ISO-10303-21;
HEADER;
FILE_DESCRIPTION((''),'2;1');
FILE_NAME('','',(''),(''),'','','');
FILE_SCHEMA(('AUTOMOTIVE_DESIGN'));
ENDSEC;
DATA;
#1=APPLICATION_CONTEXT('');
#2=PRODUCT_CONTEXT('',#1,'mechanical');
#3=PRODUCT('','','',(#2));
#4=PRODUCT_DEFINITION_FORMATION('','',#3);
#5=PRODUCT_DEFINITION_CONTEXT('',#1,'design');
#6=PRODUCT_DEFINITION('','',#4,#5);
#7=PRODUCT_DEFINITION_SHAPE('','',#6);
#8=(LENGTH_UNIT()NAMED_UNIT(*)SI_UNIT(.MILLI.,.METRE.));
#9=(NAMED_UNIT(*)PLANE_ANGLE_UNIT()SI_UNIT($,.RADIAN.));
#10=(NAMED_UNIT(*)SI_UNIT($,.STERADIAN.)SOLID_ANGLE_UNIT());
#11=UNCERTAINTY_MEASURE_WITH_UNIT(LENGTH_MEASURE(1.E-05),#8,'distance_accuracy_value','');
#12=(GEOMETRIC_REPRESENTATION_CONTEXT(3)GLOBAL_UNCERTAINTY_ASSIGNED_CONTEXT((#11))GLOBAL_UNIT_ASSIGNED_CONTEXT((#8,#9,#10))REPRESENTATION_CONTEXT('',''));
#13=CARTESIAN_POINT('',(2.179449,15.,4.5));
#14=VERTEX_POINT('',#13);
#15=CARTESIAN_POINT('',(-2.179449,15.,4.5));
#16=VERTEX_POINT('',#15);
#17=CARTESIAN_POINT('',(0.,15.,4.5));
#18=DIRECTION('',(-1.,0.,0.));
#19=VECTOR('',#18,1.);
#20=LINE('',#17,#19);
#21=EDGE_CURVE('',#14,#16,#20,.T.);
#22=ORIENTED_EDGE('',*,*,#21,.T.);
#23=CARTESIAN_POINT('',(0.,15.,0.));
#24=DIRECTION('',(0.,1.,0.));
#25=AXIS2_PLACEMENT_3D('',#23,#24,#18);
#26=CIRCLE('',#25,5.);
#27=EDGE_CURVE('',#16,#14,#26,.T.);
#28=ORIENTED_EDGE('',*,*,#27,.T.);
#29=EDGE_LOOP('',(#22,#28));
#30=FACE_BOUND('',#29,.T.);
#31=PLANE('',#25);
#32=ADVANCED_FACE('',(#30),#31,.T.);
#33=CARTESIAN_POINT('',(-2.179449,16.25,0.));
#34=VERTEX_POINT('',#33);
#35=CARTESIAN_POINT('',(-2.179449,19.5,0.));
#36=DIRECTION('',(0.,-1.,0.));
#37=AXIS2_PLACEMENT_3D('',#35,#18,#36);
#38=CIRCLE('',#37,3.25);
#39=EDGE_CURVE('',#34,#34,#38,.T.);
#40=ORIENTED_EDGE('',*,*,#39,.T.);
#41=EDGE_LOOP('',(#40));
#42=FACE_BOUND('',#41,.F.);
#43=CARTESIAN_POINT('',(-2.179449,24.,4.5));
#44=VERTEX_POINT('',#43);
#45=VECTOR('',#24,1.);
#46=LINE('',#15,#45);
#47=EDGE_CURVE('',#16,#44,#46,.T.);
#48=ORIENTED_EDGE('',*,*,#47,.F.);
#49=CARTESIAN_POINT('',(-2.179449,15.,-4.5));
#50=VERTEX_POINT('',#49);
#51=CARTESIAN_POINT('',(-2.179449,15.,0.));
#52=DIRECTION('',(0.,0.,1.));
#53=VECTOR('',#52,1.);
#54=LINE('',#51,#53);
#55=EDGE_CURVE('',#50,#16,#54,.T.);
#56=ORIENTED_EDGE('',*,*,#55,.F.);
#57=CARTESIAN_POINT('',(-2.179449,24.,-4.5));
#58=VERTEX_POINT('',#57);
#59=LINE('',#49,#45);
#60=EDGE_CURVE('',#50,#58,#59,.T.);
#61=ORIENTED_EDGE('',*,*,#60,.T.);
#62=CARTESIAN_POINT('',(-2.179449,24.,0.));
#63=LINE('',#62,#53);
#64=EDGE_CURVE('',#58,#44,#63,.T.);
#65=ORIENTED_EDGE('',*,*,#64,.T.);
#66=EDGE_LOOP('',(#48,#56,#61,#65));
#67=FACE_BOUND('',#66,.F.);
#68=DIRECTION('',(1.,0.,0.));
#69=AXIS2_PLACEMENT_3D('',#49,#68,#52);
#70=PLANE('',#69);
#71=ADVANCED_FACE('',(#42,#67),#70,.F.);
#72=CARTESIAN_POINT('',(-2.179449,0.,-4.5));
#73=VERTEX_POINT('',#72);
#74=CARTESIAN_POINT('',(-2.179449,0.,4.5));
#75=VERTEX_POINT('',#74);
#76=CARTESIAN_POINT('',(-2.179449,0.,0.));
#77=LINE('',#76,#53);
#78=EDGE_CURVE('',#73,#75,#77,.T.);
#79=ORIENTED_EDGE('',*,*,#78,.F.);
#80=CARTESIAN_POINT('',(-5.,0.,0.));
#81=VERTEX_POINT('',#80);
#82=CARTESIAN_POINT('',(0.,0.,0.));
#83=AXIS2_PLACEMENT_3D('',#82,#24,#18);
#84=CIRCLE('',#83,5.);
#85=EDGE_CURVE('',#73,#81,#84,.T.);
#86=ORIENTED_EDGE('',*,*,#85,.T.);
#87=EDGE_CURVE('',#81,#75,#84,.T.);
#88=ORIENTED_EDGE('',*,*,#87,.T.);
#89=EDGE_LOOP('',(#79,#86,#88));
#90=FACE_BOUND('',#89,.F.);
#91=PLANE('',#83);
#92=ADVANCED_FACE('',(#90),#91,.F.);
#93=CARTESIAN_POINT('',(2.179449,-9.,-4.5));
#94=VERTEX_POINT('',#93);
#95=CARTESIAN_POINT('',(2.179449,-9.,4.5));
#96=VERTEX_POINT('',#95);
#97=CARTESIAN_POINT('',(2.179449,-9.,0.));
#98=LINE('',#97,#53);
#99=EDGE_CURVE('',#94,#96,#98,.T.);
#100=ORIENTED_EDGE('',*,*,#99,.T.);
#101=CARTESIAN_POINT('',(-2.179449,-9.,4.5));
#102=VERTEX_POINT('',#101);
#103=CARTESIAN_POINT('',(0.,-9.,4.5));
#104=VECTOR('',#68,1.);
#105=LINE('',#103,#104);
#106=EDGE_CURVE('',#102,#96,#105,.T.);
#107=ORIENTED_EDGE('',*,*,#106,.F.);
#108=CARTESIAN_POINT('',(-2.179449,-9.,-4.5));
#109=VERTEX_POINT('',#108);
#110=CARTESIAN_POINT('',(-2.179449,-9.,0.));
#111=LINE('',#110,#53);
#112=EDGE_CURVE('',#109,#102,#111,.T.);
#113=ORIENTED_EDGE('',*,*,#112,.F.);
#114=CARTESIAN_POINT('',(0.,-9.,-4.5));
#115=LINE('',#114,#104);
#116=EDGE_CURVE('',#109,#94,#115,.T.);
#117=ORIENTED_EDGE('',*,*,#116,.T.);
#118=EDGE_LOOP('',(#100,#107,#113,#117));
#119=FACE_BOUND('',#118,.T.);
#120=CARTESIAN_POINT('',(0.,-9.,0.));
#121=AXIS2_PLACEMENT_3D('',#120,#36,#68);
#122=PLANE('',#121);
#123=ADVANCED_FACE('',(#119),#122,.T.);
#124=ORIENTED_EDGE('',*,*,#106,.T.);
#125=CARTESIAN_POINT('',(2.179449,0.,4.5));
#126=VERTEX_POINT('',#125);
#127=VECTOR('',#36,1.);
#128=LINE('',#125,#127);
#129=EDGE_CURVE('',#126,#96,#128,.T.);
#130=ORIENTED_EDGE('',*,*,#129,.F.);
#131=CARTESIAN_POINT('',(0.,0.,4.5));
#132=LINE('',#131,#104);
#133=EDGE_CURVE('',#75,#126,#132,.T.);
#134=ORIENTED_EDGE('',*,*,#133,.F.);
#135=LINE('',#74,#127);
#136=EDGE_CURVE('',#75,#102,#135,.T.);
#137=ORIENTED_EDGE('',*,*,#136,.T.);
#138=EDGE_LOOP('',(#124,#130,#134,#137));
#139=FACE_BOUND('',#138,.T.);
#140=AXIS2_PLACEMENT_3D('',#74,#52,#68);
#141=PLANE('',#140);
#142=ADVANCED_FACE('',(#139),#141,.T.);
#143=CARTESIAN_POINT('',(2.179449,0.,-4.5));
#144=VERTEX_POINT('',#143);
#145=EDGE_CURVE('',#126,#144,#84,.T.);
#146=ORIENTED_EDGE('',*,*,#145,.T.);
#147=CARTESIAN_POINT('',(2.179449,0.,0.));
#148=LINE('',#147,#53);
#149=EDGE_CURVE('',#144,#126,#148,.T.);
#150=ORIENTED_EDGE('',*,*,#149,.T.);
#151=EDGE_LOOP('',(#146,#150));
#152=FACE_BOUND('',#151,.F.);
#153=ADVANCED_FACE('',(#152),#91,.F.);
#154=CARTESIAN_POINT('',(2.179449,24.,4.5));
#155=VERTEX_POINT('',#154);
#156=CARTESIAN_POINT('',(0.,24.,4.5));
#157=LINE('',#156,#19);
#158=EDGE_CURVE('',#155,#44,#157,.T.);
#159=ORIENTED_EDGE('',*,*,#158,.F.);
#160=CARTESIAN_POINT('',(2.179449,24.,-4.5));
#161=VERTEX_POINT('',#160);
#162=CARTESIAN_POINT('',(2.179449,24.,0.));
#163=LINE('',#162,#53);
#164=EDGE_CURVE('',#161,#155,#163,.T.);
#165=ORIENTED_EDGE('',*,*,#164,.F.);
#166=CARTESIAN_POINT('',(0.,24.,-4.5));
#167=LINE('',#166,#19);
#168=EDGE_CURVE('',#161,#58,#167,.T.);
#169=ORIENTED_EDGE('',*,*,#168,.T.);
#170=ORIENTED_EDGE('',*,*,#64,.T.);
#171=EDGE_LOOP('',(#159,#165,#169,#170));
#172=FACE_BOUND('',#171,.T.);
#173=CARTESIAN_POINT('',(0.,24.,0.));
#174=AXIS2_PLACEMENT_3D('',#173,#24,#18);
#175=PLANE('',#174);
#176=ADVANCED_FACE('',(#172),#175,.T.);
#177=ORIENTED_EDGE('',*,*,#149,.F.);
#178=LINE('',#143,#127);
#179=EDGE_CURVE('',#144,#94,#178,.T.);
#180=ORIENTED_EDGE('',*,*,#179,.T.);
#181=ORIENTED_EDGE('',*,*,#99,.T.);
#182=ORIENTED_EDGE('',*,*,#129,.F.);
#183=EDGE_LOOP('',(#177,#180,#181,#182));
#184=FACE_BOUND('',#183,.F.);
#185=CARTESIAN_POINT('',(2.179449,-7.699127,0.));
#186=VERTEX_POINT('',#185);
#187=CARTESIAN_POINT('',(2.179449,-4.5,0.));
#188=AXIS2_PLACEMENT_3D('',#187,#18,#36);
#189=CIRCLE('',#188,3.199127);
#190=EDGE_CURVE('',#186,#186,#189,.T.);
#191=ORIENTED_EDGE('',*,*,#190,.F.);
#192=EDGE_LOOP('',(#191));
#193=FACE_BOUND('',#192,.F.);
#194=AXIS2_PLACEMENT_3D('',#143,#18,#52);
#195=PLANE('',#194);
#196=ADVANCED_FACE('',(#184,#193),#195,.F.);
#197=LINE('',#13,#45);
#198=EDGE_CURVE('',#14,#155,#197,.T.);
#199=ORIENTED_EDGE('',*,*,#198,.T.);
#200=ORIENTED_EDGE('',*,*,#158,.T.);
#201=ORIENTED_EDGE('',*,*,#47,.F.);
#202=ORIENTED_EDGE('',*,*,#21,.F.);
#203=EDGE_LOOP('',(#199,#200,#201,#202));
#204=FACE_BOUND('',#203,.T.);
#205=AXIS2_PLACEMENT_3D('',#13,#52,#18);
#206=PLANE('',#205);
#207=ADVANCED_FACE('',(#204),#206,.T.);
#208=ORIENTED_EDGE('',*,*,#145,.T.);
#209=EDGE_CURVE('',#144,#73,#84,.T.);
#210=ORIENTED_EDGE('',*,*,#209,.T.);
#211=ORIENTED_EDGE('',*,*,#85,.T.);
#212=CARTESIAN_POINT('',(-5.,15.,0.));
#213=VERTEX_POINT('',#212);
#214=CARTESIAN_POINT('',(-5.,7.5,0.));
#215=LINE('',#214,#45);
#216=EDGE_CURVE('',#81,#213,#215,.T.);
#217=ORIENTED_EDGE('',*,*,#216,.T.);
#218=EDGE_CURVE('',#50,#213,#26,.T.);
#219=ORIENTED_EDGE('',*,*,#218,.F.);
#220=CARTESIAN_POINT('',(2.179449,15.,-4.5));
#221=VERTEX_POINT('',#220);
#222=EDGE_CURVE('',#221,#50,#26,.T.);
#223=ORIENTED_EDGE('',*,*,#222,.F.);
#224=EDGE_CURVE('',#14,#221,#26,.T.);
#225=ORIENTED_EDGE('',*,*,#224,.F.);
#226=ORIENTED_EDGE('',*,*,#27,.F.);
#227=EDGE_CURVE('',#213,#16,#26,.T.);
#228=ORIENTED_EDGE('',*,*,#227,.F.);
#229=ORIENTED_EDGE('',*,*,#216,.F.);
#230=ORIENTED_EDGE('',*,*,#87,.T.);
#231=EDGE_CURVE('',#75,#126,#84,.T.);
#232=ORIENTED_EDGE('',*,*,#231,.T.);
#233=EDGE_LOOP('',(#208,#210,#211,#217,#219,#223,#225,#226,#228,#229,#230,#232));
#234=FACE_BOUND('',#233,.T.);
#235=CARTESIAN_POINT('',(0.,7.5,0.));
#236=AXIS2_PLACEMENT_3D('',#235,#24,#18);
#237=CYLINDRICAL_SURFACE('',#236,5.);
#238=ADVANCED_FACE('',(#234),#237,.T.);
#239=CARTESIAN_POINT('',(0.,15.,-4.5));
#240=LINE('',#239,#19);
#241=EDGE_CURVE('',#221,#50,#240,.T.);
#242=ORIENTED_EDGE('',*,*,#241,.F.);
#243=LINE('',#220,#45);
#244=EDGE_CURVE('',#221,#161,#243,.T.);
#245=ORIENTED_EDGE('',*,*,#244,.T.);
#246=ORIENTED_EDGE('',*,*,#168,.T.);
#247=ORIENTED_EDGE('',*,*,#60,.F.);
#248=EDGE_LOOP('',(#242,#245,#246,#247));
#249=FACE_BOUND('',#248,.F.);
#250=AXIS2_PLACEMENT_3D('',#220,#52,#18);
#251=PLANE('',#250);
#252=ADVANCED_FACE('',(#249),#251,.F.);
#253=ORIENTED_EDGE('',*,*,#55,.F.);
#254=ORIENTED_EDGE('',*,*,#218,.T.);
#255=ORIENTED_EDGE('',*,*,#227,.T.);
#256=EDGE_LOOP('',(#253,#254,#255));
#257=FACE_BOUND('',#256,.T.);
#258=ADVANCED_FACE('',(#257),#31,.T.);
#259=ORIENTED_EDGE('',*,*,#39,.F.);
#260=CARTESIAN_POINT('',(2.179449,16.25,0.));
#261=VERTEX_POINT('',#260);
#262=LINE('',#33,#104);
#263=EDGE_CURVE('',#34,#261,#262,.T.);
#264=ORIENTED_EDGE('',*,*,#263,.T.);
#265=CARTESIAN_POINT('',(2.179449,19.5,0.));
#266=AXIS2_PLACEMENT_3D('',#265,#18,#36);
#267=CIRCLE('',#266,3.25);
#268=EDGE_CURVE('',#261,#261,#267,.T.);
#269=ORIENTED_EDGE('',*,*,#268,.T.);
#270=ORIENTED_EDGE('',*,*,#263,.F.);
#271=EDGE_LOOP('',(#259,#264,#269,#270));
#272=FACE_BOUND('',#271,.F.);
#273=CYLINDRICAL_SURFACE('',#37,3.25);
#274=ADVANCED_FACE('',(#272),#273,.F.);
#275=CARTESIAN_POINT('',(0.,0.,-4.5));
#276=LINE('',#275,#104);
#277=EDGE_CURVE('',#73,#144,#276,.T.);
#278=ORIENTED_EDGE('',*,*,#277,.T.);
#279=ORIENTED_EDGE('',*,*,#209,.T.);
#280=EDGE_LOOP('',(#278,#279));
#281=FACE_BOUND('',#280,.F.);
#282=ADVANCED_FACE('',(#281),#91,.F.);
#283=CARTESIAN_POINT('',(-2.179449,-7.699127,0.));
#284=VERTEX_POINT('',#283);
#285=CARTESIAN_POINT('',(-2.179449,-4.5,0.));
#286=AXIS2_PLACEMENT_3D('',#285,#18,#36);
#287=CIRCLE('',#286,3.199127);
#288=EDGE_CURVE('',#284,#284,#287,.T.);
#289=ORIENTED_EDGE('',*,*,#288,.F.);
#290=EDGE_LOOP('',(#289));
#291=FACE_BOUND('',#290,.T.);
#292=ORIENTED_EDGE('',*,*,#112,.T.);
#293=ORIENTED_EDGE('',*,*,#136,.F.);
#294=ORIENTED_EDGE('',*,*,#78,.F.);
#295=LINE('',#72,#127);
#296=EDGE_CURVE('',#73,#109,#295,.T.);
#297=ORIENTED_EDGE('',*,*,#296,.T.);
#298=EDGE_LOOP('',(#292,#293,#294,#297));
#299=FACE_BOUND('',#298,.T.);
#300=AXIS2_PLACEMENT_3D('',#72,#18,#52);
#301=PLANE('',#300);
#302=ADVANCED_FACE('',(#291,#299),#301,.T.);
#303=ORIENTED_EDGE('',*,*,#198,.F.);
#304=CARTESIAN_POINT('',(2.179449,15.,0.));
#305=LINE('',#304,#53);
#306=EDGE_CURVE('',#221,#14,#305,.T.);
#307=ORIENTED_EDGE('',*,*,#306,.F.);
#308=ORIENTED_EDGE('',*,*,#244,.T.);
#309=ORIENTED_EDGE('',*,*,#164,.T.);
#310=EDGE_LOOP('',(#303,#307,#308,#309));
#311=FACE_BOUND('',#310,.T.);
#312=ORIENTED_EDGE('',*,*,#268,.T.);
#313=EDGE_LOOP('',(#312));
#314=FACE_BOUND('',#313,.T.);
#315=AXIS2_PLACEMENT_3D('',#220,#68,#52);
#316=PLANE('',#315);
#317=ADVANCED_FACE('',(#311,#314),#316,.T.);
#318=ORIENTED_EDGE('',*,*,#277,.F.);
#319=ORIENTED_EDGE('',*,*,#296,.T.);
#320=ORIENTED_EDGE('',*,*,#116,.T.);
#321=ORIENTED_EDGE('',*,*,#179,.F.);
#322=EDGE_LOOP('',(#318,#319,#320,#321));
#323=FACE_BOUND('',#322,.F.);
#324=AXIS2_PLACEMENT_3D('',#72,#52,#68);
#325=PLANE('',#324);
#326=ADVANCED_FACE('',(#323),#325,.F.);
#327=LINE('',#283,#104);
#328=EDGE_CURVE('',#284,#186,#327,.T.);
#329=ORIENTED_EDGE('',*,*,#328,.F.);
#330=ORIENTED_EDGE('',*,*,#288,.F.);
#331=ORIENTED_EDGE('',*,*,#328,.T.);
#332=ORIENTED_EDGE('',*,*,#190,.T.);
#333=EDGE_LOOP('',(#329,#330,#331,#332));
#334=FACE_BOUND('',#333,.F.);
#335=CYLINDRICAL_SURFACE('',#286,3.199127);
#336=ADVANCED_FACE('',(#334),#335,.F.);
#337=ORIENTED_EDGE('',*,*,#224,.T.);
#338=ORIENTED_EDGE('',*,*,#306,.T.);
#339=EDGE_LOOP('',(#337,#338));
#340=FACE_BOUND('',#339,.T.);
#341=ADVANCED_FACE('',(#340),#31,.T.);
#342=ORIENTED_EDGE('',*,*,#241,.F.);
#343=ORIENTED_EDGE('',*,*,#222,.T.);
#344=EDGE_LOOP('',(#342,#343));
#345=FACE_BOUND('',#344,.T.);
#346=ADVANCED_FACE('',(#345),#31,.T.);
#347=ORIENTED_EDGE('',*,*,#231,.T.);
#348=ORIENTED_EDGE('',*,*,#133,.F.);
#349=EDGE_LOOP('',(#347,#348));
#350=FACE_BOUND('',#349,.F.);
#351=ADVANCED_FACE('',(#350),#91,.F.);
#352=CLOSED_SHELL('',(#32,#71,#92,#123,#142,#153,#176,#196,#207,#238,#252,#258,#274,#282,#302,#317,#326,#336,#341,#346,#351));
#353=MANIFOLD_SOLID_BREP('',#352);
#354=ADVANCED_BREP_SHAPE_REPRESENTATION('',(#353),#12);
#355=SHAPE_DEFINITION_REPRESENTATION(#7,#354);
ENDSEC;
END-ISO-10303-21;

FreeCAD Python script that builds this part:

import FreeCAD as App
import Part
import Sketcher

V = App.Vector
Q = App.Units.Quantity

doc = App.newDocument("Part")
params = doc.addObject("Spreadsheet::Sheet", "Params")
for row, (alias, value) in enumerate([
    ("sketch1_width", "5 mm"),
    ("sketch1_height", "15 mm"),
    ("revolution_angle", "360 deg"),
    ("sketch2_height", "9 mm"),
    ("pad1_length", "9 mm"),
    ("pocket1_length", "5 mm"),
    ("sketch4_height", "9 mm"),
    ("pad2_length", "9 mm"),
    ("sketch5_diameter", "6.5 mm"),
    ("pocket2_length", "5 mm"),
], start=1):
    params.set(f"A{row}", alias)
    params.set(f"B{row}", "=" + value)
    params.setAlias(f"B{row}", alias)

body = doc.addObject("PartDesign::Body", "Body")

sketch1 = body.newObject("Sketcher::SketchObject", "Sketch")
sketch1.AttachmentSupport = (doc.getObject("XY_Plane"), [""])
sketch1.MapMode = "FlatFace"
sketch1.addGeometry([
    Part.LineSegment(V(-5, 15, 0), V(-5, 0, 0)),
    Part.LineSegment(V(-5, 0, 0), V(0, 0, 0)),
    Part.LineSegment(V(0, 0, 0), V(0, 15, 0)),
    Part.LineSegment(V(0, 15, 0), V(-5, 15, 0)),
], False)
sketch1.addConstraint([
    Sketcher.Constraint("Coincident", 0, 2, 1, 1),
    Sketcher.Constraint("Coincident", 1, 2, 2, 1),
    Sketcher.Constraint("Coincident", 2, 2, 3, 1),
    Sketcher.Constraint("Coincident", 3, 2, 0, 1),
    Sketcher.Constraint("Vertical", 0),
    Sketcher.Constraint("Horizontal", 1),
    Sketcher.Constraint("Vertical", 2),
    Sketcher.Constraint("Horizontal", 3),
    Sketcher.Constraint("Coincident", 1, 2, -1, 1),
    Sketcher.Constraint("DistanceX", 1, 1, 1, 2, Q("5 mm")),
    Sketcher.Constraint("DistanceY", 0, 2, 0, 1, Q("15 mm")),
])
sketch1.setExpression("Constraints[9]", "Params.sketch1_width")
sketch1.setExpression("Constraints[10]", "Params.sketch1_height")
revolution = body.newObject("PartDesign::Revolution", "Revolution")
revolution.Profile = sketch1
revolution.ReferenceAxis = (sketch1, ["V_Axis"])
revolution.setExpression("Angle", "Params.revolution_angle")

sketch2 = body.newObject("Sketcher::SketchObject", "Sketch001")
sketch2.AttachmentSupport = (doc.getObject("XZ_Plane"), [""])
sketch2.MapMode = "FlatFace"
sketch2.addGeometry([
    Part.LineSegment(V(-2.179449, 4.5, 0), V(-2.179449, -4.5, 0)),
    Part.LineSegment(V(-2.179449, -4.5, 0), V(2.179449, -4.5, 0)),
    Part.LineSegment(V(2.179449, -4.5, 0), V(2.179449, 4.5, 0)),
    Part.LineSegment(V(2.179449, 4.5, 0), V(-2.179449, 4.5, 0)),
], False)
sketch2.addConstraint([
    Sketcher.Constraint("Coincident", 0, 2, 1, 1),
    Sketcher.Constraint("Coincident", 1, 2, 2, 1),
    Sketcher.Constraint("Coincident", 2, 2, 3, 1),
    Sketcher.Constraint("Coincident", 3, 2, 0, 1),
    Sketcher.Constraint("Vertical", 0),
    Sketcher.Constraint("Horizontal", 1),
    Sketcher.Constraint("Vertical", 2),
    Sketcher.Constraint("Horizontal", 3),
    Sketcher.Constraint("Symmetric", 0, 2, 2, 2, -1, 1),
    Sketcher.Constraint("DistanceY", 0, 2, 0, 1, Q("9 mm")),
    Sketcher.Constraint("DistanceX", 1, 1, 1, 2, Q("4.358899 mm")),
])
sketch2.setExpression("Constraints[9]", "Params.sketch2_height")
pad1 = body.newObject("PartDesign::Pad", "Pad")
pad1.Profile = sketch2
pad1.setExpression("Length", "Params.pad1_length")

sketch3 = body.newObject("Sketcher::SketchObject", "Sketch002")
sketch3.AttachmentSupport = (doc.getObject("YZ_Plane"), [""])
sketch3.MapMode = "FlatFace"
sketch3.AttachmentOffset = App.Placement(V(0, 0, -2.179449), App.Rotation())
sketch3.addGeometry(Part.Circle(V(-4.5, 0, 0), V(0, 0, 1), 3.199127), False)
sketch3.addConstraint([
    Sketcher.Constraint("PointOnObject", 0, 3, -1),
    Sketcher.Constraint("DistanceX", 0, 3, -1, 1, Q("4.5 mm")),
    Sketcher.Constraint("Diameter", 0, Q("6.398254 mm")),
])
pocket1 = body.newObject("PartDesign::Pocket", "Pocket")
pocket1.Profile = sketch3
pocket1.setExpression("Length", "Params.pocket1_length")
pocket1.Reversed = True

sketch4 = body.newObject("Sketcher::SketchObject", "Sketch003")
sketch4.AttachmentSupport = (doc.getObject("XZ_Plane"), [""])
sketch4.MapMode = "FlatFace"
sketch4.AttachmentOffset = App.Placement(V(0, 0, -15), App.Rotation())
sketch4.addGeometry([
    Part.LineSegment(V(2.179449, 4.5, 0), V(2.179449, -4.5, 0)),
    Part.LineSegment(V(2.179449, -4.5, 0), V(-2.179449, -4.5, 0)),
    Part.LineSegment(V(-2.179449, -4.5, 0), V(-2.179449, 4.5, 0)),
    Part.LineSegment(V(-2.179449, 4.5, 0), V(2.179449, 4.5, 0)),
], False)
sketch4.addConstraint([
    Sketcher.Constraint("Coincident", 0, 2, 1, 1),
    Sketcher.Constraint("Coincident", 1, 2, 2, 1),
    Sketcher.Constraint("Coincident", 2, 2, 3, 1),
    Sketcher.Constraint("Coincident", 3, 2, 0, 1),
    Sketcher.Constraint("Vertical", 0),
    Sketcher.Constraint("Horizontal", 1),
    Sketcher.Constraint("Vertical", 2),
    Sketcher.Constraint("Horizontal", 3),
    Sketcher.Constraint("Symmetric", 0, 2, 2, 2, -1, 1),
    Sketcher.Constraint("DistanceY", 0, 2, 0, 1, Q("9 mm")),
    Sketcher.Constraint("DistanceX", 1, 2, 1, 1, Q("4.358899 mm")),
])
sketch4.setExpression("Constraints[9]", "Params.sketch4_height")
pad2 = body.newObject("PartDesign::Pad", "Pad001")
pad2.Profile = sketch4
pad2.setExpression("Length", "Params.pad2_length")
pad2.Reversed = True

sketch5 = body.newObject("Sketcher::SketchObject", "Sketch004")
sketch5.AttachmentSupport = (doc.getObject("YZ_Plane"), [""])
sketch5.MapMode = "FlatFace"
sketch5.AttachmentOffset = App.Placement(V(0, 0, -2.179449), App.Rotation())
sketch5.addGeometry(Part.Circle(V(19.5, 0, 0), V(0, 0, 1), 3.25), False)
sketch5.addConstraint([
    Sketcher.Constraint("PointOnObject", 0, 3, -1),
    Sketcher.Constraint("Diameter", 0, Q("6.5 mm")),
    Sketcher.Constraint("DistanceX", -1, 1, 0, 3, Q("19.5 mm")),
])
sketch5.setExpression("Constraints[1]", "Params.sketch5_diameter")
pocket2 = body.newObject("PartDesign::Pocket", "Pocket001")
pocket2.Profile = sketch5
pocket2.setExpression("Length", "Params.pocket2_length")
pocket2.Reversed = True

doc.recompute()
